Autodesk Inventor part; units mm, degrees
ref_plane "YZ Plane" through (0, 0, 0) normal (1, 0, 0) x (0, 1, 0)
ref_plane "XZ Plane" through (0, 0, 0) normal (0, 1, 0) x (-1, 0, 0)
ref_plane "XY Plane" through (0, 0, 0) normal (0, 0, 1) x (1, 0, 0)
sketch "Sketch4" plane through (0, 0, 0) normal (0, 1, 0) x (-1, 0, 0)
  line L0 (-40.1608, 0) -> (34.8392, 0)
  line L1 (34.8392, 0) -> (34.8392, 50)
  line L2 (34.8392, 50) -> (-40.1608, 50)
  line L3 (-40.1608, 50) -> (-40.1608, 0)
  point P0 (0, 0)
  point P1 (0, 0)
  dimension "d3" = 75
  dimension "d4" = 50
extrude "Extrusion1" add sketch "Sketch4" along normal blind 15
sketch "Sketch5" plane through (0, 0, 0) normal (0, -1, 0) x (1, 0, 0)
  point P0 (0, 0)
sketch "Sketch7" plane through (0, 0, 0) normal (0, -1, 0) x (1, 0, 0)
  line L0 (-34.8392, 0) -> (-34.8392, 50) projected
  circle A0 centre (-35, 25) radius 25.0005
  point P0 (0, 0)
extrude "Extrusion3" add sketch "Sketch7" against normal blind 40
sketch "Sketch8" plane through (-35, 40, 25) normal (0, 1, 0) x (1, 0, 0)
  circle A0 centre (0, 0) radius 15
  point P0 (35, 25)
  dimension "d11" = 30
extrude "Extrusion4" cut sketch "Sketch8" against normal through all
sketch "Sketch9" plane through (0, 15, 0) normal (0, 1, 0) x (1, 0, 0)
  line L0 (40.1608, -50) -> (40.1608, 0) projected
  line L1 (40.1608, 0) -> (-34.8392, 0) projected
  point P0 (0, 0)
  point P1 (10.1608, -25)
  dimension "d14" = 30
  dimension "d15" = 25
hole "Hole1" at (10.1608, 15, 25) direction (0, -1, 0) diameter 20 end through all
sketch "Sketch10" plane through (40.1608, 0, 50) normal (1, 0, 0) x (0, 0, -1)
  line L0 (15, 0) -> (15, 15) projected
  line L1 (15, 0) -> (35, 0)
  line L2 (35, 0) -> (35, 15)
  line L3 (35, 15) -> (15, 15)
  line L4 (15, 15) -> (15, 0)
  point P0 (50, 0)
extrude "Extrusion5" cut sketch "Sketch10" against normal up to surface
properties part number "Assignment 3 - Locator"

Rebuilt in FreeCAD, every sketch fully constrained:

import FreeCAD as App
import Part
import Sketcher
from FreeCAD import Vector

doc = App.newDocument("Part")
body = doc.addObject("PartDesign::Body", "Body")

sketch1 = body.newObject("Sketcher::SketchObject", "Sketch")
sketch1.AttachmentSupport = (doc.getObject("XZ_Plane"), [""])
sketch1.MapMode = "FlatFace"
sketch1.addGeometry([
    Part.LineSegment(Vector(40, 50, 0), Vector(40, 0, 0)),
    Part.LineSegment(Vector(40, 0, 0), Vector(-35, 0, 0)),
    Part.LineSegment(Vector(-35, 0, 0), Vector(-35, 50, 0)),
    Part.LineSegment(Vector(-35, 50, 0), Vector(40, 50, 0)),
], False)
sketch1.addConstraint([
    Sketcher.Constraint("Coincident", 0, 2, 1, 1),
    Sketcher.Constraint("Coincident", 1, 2, 2, 1),
    Sketcher.Constraint("Coincident", 2, 2, 3, 1),
    Sketcher.Constraint("Coincident", 3, 2, 0, 1),
    Sketcher.Constraint("Vertical", 0),
    Sketcher.Constraint("Horizontal", 1),
    Sketcher.Constraint("Vertical", 2),
    Sketcher.Constraint("Horizontal", 3),
    Sketcher.Constraint("PointOnObject", 0, 2, -1),
    Sketcher.Constraint("DistanceX", 1, 2, 1, 1, 75.0),
    Sketcher.Constraint("DistanceY", 0, 2, 0, 1, 50.0),
    Sketcher.Constraint("DistanceX", -1, 1, 0, 2, 40.1608),
])
pad1 = body.newObject("PartDesign::Pad", "Pad")
pad1.Profile = sketch1
pad1.Length = 15
pad1.Reversed = True

sketch2 = body.newObject("Sketcher::SketchObject", "Sketch001")
sketch2.AttachmentSupport = (doc.getObject("XZ_Plane"), [""])
sketch2.MapMode = "FlatFace"
sketch2.addGeometry(Part.Circle(Vector(-35, 25, 0), Vector(0, 0, 1), 25), False)
sketch2.addConstraint([
    Sketcher.Constraint("Diameter", 0, 50.001),
    Sketcher.Constraint("DistanceX", 0, 3, -1, 1, 35.0),
    Sketcher.Constraint("DistanceY", -1, 1, 0, 3, 25.0),
])
pad2 = body.newObject("PartDesign::Pad", "Pad001")
pad2.Profile = sketch2
pad2.Length = 40
pad2.Reversed = True

sketch3 = body.newObject("Sketcher::SketchObject", "Sketch002")
sketch3.AttachmentSupport = (doc.getObject("XZ_Plane"), [""])
sketch3.MapMode = "FlatFace"
sketch3.AttachmentOffset = App.Placement(Vector(0, 0, -40), App.Rotation())
sketch3.addGeometry(Part.Circle(Vector(-35, 25, 0), Vector(0, 0, 1), 15), False)
sketch3.addConstraint([
    Sketcher.Constraint("Diameter", 0, 30.0),
    Sketcher.Constraint("DistanceX", 0, 3, -1, 1, 35.0),
    Sketcher.Constraint("DistanceY", -1, 1, 0, 3, 25.0),
])
pocket1 = body.newObject("PartDesign::Pocket", "Pocket")
pocket1.Profile = sketch3
pocket1.Type = "ThroughAll"
pocket1.Reversed = True

sketch4 = body.newObject("Sketcher::SketchObject", "Sketch003")
sketch4.AttachmentSupport = (doc.getObject("XZ_Plane"), [""])
sketch4.MapMode = "FlatFace"
sketch4.AttachmentOffset = App.Placement(Vector(0, 0, -15), App.Rotation())
sketch4.addGeometry(Part.Circle(Vector(10, 25, 0), Vector(0, 0, 1), 10), False)
sketch4.addConstraint([
    Sketcher.Constraint("Diameter", 0, 20.0),
    Sketcher.Constraint("DistanceY", -1, 1, 0, 3, 25.0),
    Sketcher.Constraint("DistanceX", -1, 1, 0, 3, 10.1608),
])
doc.recompute()
hole = body.newObject("PartDesign::Hole", "Hole")
hole.Profile = sketch4
hole.ThreadType = "None"
hole.Diameter = 20
hole.DepthType = "ThroughAll"
hole.Reversed = True

sketch5 = body.newObject("Sketcher::SketchObject", "Sketch004")
sketch5.AttachmentSupport = (doc.getObject("YZ_Plane"), [""])
sketch5.MapMode = "FlatFace"
sketch5.AttachmentOffset = App.Placement(Vector(0, 0, 40.1608), App.Rotation())
sketch5.addGeometry([
    Part.LineSegment(Vector(15, 35, 0), Vector(0, 35, 0)),
    Part.LineSegment(Vector(0, 35, 0), Vector(0, 15, 0)),
    Part.LineSegment(Vector(0, 15, 0), Vector(15, 15, 0)),
    Part.LineSegment(Vector(15, 15, 0), Vector(15, 35, 0)),
], False)
sketch5.addConstraint([
    Sketcher.Constraint("Coincident", 0, 2, 1, 1),
    Sketcher.Constraint("Coincident", 1, 2, 2, 1),
    Sketcher.Constraint("Coincident", 2, 2, 3, 1),
    Sketcher.Constraint("Coincident", 3, 2, 0, 1),
    Sketcher.Constraint("Horizontal", 0),
    Sketcher.Constraint("Vertical", 1),
    Sketcher.Constraint("Horizontal", 2),
    Sketcher.Constraint("Vertical", 3),
    Sketcher.Constraint("PointOnObject", 0, 2, -2),
    Sketcher.Constraint("DistanceX", 0, 2, 0, 1, 15.0),
    Sketcher.Constraint("DistanceY", 1, 2, 1, 1, 20.0),
    Sketcher.Constraint("DistanceY", -1, 1, 0, 2, 35.0),
])
pocket2 = body.newObject("PartDesign::Pocket", "Pocket001")
pocket2.Profile = sketch5
pocket2.Type = "UpToFirst"

doc.recompute()
